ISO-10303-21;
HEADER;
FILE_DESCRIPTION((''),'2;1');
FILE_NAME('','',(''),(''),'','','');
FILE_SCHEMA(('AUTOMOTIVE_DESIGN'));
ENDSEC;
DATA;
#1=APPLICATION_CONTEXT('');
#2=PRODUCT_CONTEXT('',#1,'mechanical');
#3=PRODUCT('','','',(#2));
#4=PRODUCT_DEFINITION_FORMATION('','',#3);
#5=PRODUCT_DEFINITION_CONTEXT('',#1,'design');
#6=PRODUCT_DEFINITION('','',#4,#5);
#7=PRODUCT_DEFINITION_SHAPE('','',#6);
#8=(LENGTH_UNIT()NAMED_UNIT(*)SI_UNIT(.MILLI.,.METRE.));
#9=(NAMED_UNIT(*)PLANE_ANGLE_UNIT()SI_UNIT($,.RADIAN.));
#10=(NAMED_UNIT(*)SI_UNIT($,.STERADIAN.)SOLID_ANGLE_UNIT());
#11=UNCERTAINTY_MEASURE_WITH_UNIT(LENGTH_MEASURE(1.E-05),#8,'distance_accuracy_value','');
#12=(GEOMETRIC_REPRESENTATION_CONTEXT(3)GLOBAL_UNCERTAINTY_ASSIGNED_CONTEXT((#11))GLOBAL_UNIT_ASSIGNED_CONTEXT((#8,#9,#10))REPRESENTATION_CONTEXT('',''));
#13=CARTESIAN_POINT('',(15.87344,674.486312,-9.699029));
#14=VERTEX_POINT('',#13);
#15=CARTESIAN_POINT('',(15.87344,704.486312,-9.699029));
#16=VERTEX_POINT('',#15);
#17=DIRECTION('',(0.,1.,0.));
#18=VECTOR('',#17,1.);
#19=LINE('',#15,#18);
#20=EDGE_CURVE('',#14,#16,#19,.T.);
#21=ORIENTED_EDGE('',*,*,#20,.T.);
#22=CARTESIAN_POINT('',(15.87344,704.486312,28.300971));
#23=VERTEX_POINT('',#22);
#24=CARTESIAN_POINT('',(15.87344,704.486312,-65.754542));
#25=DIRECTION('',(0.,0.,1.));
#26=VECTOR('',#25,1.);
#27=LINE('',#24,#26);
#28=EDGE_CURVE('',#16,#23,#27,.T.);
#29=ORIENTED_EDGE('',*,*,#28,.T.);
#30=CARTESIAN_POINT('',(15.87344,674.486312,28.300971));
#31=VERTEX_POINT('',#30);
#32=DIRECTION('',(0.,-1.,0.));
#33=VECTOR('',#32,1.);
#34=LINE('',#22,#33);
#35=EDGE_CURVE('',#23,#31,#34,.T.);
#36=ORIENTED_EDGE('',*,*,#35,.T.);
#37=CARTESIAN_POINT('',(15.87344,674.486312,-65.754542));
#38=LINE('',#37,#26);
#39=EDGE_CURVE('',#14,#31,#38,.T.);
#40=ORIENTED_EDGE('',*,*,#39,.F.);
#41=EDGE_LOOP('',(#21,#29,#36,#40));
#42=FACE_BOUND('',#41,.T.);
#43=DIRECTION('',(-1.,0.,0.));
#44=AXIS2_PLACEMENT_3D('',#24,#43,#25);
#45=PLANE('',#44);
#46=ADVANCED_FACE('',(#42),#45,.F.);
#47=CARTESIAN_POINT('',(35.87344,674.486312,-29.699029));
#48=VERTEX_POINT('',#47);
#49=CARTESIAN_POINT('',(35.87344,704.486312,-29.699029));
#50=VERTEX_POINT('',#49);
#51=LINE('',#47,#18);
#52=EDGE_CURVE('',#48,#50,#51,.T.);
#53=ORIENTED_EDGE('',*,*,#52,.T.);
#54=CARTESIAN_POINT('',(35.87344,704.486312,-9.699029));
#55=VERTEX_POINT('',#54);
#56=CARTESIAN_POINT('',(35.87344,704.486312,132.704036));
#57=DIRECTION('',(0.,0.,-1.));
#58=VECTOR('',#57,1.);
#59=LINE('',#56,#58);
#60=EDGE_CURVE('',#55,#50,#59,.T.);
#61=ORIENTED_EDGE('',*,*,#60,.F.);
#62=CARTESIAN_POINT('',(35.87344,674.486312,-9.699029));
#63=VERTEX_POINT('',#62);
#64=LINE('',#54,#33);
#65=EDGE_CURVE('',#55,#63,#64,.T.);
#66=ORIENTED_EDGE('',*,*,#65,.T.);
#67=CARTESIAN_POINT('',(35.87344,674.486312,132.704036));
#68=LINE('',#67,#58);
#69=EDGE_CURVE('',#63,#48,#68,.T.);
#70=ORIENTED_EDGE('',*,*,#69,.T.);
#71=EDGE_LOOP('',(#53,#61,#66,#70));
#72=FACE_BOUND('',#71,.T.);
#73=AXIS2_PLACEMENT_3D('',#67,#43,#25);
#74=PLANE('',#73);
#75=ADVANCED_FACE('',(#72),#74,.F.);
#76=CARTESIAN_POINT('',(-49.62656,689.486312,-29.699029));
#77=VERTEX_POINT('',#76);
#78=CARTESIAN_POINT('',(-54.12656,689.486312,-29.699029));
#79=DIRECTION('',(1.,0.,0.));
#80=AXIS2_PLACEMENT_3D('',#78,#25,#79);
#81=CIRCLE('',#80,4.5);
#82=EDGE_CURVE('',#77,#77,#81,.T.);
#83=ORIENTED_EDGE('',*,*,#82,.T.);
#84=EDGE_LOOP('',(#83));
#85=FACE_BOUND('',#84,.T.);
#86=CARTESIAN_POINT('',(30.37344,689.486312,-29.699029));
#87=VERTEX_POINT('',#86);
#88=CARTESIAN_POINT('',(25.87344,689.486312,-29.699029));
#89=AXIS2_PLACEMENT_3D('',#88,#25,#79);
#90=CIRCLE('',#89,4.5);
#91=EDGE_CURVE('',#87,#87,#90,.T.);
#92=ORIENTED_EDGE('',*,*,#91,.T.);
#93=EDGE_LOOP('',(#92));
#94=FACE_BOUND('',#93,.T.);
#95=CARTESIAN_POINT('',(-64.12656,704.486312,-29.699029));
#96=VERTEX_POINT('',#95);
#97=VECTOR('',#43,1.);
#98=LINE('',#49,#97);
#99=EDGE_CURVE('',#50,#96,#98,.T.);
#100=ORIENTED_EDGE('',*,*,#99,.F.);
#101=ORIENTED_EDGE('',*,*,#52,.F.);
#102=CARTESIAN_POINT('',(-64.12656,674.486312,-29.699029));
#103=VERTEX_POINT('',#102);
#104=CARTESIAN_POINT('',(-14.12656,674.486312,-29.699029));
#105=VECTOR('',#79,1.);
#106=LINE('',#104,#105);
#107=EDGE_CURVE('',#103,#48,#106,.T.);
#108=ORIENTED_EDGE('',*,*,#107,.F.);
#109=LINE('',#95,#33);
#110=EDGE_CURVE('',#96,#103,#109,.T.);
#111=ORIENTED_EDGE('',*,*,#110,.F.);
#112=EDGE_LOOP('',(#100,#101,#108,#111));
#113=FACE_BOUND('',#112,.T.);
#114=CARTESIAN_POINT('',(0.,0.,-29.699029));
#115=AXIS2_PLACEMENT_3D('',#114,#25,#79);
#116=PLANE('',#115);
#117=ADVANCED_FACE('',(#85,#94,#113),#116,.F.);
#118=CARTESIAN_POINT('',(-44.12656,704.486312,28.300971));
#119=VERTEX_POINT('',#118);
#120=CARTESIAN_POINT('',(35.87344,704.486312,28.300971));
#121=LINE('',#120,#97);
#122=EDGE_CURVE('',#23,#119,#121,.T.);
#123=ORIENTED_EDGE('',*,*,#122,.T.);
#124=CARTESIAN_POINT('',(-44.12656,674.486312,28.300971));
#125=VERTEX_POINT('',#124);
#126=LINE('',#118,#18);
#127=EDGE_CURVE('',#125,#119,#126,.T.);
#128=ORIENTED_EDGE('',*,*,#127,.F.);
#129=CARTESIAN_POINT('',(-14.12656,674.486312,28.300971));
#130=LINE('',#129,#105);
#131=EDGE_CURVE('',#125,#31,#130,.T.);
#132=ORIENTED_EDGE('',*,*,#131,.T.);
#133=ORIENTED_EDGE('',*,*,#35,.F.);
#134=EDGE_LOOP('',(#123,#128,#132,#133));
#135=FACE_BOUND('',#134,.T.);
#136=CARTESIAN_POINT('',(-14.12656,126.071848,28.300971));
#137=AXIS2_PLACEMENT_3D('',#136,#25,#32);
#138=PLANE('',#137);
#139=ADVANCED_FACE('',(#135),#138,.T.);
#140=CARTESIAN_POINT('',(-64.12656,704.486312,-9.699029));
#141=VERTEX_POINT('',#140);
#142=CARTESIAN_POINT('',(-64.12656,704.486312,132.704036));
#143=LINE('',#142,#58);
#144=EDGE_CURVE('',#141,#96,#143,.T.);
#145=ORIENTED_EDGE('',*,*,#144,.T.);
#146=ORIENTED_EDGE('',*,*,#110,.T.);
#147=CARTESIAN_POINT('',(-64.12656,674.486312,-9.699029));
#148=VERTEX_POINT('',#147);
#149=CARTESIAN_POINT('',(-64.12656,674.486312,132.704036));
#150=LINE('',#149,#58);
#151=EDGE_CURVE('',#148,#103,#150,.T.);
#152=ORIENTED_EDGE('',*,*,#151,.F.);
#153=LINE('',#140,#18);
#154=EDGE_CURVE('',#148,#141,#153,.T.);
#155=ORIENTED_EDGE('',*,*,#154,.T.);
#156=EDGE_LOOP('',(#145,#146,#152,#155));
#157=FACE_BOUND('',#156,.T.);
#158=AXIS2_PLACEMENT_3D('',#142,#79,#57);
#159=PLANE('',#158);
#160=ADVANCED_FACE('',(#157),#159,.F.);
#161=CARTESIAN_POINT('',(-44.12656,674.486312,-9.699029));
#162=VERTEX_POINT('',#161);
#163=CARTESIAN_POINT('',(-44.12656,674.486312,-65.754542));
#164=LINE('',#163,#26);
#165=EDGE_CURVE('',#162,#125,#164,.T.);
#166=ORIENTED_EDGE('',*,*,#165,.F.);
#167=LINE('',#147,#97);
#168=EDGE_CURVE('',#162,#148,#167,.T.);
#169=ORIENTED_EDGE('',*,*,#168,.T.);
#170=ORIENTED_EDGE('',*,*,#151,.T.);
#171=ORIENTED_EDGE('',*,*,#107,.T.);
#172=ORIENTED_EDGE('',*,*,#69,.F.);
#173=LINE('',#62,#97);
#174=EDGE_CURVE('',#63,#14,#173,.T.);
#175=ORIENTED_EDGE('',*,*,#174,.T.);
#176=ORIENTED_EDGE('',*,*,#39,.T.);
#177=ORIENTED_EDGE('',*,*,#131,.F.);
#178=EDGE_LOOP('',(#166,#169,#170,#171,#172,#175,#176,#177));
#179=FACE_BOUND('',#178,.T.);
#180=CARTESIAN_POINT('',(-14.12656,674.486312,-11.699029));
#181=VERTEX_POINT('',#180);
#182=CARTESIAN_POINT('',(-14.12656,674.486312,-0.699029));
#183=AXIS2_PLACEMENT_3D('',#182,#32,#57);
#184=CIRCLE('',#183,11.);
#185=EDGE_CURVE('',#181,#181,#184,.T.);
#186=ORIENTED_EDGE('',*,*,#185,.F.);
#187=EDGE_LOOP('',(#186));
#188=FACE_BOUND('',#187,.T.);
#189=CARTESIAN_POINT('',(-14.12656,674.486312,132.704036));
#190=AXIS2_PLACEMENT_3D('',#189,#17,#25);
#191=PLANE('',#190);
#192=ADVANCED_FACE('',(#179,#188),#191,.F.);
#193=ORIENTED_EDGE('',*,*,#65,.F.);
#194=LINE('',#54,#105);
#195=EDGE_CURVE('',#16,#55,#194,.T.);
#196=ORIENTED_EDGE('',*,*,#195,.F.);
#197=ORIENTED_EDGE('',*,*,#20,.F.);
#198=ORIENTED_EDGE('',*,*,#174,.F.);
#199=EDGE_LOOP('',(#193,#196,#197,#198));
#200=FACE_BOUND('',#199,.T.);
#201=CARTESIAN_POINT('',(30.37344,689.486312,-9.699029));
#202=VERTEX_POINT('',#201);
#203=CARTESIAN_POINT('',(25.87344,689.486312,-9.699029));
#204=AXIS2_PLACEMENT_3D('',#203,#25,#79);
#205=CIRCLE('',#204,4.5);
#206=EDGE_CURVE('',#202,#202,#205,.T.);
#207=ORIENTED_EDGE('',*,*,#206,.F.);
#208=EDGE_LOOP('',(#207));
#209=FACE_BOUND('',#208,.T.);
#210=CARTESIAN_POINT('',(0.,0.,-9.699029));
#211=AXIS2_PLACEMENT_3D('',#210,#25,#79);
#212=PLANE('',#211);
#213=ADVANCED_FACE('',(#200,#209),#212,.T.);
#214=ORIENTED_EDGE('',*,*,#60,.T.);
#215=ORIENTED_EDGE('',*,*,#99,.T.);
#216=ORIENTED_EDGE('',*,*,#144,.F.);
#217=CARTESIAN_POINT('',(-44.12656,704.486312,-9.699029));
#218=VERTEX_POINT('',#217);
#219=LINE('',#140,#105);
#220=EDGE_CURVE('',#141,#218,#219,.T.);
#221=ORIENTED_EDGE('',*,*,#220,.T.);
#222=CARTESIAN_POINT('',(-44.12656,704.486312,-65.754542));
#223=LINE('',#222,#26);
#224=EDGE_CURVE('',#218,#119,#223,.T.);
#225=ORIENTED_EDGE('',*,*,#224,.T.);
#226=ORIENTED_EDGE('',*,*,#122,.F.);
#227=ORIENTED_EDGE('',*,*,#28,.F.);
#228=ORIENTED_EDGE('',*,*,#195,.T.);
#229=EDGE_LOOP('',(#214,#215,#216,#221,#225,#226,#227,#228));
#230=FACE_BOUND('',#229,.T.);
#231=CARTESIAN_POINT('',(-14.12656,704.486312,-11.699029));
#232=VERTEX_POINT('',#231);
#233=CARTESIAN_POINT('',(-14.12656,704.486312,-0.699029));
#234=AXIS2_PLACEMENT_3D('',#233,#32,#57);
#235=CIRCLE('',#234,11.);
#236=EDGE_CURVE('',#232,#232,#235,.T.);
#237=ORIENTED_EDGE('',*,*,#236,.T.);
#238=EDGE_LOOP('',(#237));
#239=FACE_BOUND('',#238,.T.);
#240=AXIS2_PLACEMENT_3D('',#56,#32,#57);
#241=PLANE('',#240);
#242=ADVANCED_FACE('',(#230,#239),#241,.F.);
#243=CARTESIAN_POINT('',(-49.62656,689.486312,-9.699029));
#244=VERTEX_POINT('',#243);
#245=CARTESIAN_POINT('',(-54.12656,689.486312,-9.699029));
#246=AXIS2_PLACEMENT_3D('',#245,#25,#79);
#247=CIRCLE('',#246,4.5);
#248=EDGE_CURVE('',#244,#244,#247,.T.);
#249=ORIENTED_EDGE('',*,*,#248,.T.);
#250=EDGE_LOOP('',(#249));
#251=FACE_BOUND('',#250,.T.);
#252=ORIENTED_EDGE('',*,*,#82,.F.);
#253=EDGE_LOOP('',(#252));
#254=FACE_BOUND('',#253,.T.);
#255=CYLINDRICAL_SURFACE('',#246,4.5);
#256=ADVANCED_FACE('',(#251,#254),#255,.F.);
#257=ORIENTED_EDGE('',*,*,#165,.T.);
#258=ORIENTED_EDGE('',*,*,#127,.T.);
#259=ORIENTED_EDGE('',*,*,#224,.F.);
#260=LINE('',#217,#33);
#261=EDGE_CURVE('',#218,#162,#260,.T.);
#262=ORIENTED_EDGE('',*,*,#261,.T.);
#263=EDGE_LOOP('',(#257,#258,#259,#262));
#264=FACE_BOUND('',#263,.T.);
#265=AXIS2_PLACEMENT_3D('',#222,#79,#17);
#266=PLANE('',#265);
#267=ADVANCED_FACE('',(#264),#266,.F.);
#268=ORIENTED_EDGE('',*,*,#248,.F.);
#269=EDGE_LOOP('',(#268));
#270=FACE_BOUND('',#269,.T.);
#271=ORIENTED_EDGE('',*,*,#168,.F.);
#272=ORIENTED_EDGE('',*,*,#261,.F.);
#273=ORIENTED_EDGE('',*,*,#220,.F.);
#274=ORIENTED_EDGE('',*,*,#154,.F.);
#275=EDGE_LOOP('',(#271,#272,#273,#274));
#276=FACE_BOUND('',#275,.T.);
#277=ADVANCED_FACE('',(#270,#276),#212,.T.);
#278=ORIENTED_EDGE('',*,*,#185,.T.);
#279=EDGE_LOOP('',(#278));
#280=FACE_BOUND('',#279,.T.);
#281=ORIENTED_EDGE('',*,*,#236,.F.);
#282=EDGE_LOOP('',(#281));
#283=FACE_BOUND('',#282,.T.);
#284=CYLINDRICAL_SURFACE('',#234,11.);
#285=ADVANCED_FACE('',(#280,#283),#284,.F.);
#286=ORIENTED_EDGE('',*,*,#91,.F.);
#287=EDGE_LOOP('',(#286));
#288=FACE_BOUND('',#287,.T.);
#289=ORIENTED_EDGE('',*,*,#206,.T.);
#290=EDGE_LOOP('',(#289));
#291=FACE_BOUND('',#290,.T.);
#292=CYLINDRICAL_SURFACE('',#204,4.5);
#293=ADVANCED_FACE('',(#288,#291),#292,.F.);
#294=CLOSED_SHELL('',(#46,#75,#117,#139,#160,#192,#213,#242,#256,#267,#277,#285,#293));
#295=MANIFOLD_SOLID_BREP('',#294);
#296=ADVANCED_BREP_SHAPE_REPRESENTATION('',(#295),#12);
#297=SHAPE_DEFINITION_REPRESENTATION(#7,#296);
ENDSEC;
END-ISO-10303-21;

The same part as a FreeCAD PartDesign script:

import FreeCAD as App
import Part
import Sketcher


def add_polygon(sketch, points):
    """Adds a closed chain of lines whose ends are joined by coincident constraints."""
    first, n = sketch.GeometryCount, len(points)
    for a, b in zip(points, points[1:] + points[:1]):
        sketch.addGeometry(Part.LineSegment(App.Vector(*a, 0), App.Vector(*b, 0)), False)
    for i in range(n):
        sketch.addConstraint(Sketcher.Constraint("Coincident", first + i, 2, first + (i + 1) % n, 1))

doc = App.newDocument("Part")
body = doc.addObject("PartDesign::Body", "Body")

# Sketch on XY plane
sketch1 = body.newObject("Sketcher::SketchObject", "Sketch")
sketch1.AttachmentSupport = (doc.getObject("XY_Plane"), [""])
sketch1.MapMode = "FlatFace"
sketch1.AttachmentOffset = App.Placement(App.Vector(0, 0, -29.699029), App.Rotation())
add_polygon(sketch1, [(-64, 674), (36, 674), (36, 704), (-64, 704)])  # lines 0-3
sketch1.addConstraint(Sketcher.Constraint("Horizontal", 0))
sketch1.addConstraint(Sketcher.Constraint("Vertical", 1))
sketch1.addConstraint(Sketcher.Constraint("Horizontal", 2))
sketch1.addConstraint(Sketcher.Constraint("Vertical", 3))
sketch1.addConstraint(Sketcher.Constraint("DistanceX", 0, 1, 0, 2, 100.0))
sketch1.addConstraint(Sketcher.Constraint("DistanceY", 1, 1, 1, 2, 30.0))
sketch1.addConstraint(Sketcher.Constraint("DistanceX", -1, 1, 0, 2, 35.87344))
sketch1.addConstraint(Sketcher.Constraint("DistanceY", -1, 1, 0, 2, 674.486312))
pad1 = body.newObject("PartDesign::Pad", "Pad")
pad1.Profile = sketch1
pad1.Length = 58

# Sketch on XZ plane
sketch2 = body.newObject("Sketcher::SketchObject", "Sketch001")
sketch2.AttachmentSupport = (doc.getObject("XZ_Plane"), [""])
sketch2.MapMode = "FlatFace"
sketch2.AttachmentOffset = App.Placement(App.Vector(0, 0, -674.486312), App.Rotation())
sketch2.addGeometry(Part.Circle(App.Vector(-14, -1, 0), App.Vector(0, 0, 1), 11), False)
sketch2.addConstraint(Sketcher.Constraint("Diameter", 0, 22.0))
sketch2.addConstraint(Sketcher.Constraint("DistanceX", 0, 3, -1, 1, 14.12656))
sketch2.addConstraint(Sketcher.Constraint("DistanceY", 0, 3, -1, 1, 0.699029))
pocket1 = body.newObject("PartDesign::Pocket", "Pocket")
pocket1.Profile = sketch2
pocket1.Type = "ThroughAll"

# Sketch on XY plane
sketch3 = body.newObject("Sketcher::SketchObject", "Sketch002")
sketch3.AttachmentSupport = (doc.getObject("XY_Plane"), [""])
sketch3.MapMode = "FlatFace"
sketch3.AttachmentOffset = App.Placement(App.Vector(0, 0, 28.300971), App.Rotation())
add_polygon(sketch3, [(-64, 704), (-64, 674), (-44, 674), (-44, 704)])  # lines 0-3
add_polygon(sketch3, [(16, 704), (16, 674), (36, 674), (36, 704)])  # lines 4-7
sketch3.addConstraint(Sketcher.Constraint("Vertical", 0))
sketch3.addConstraint(Sketcher.Constraint("Horizontal", 1))
sketch3.addConstraint(Sketcher.Constraint("Vertical", 2))
sketch3.addConstraint(Sketcher.Constraint("Horizontal", 3))
sketch3.addConstraint(Sketcher.Constraint("Vertical", 4))
sketch3.addConstraint(Sketcher.Constraint("Horizontal", 5))
sketch3.addConstraint(Sketcher.Constraint("Vertical", 6))
sketch3.addConstraint(Sketcher.Constraint("Horizontal", 7))
sketch3.addConstraint(Sketcher.Constraint("Horizontal", 1, 2, 4, 2))
sketch3.addConstraint(Sketcher.Constraint("Horizontal", 3, 2, 6, 2))
sketch3.addConstraint(Sketcher.Constraint("Equal", 3, 5))
sketch3.addConstraint(Sketcher.Constraint("DistanceX", 1, 1, 1, 2, 20.0))
sketch3.addConstraint(Sketcher.Constraint("DistanceY", 0, 2, 0, 1, 30.0))
sketch3.addConstraint(Sketcher.Constraint("DistanceX", 1, 2, 4, 2, 60.0))
sketch3.addConstraint(Sketcher.Constraint("DistanceX", 0, 2, -1, 1, 64.12656))
sketch3.addConstraint(Sketcher.Constraint("DistanceY", -1, 1, 0, 2, 674.486312))
pocket2 = body.newObject("PartDesign::Pocket", "Pocket001")
pocket2.Profile = sketch3
pocket2.Length = 38

# Sketch on XY plane
sketch4 = body.newObject("Sketcher::SketchObject", "Sketch003")
sketch4.AttachmentSupport = (doc.getObject("XY_Plane"), [""])
sketch4.MapMode = "FlatFace"
sketch4.AttachmentOffset = App.Placement(App.Vector(0, 0, -9.699029), App.Rotation())
sketch4.addGeometry(Part.Circle(App.Vector(-54.1, 172.6, 0), App.Vector(0, 0, 1), 4.5), False)
sketch4.addGeometry(Part.Circle(App.Vector(-54.1, 137.6, 0), App.Vector(0, 0, 1), 4.5), False)
sketch4.addGeometry(Part.Circle(App.Vector(25.9, 172.6, 0), App.Vector(0, 0, 1), 4.5), False)
sketch4.addGeometry(Part.Circle(App.Vector(25.9, 137.6, 0), App.Vector(0, 0, 1), 4.5), False)
sketch4.addGeometry(Part.Circle(App.Vector(-54.1, 689.5, 0), App.Vector(0, 0, 1), 4.5), False)
sketch4.addGeometry(Part.Circle(App.Vector(25.9, 689.5, 0), App.Vector(0, 0, 1), 4.5), False)
sketch4.addConstraint(Sketcher.Constraint("Equal", 0, 1))
sketch4.addConstraint(Sketcher.Constraint("Equal", 1, 2))
sketch4.addConstraint(Sketcher.Constraint("Equal", 2, 3))
sketch4.addConstraint(Sketcher.Constraint("Equal", 3, 4))
sketch4.addConstraint(Sketcher.Constraint("Equal", 4, 5))
sketch4.addConstraint(Sketcher.Constraint("Horizontal", 0, 3, 2, 3))
sketch4.addConstraint(Sketcher.Constraint("Horizontal", 1, 3, 3, 3))
sketch4.addConstraint(Sketcher.Constraint("Horizontal", 4, 3, 5, 3))
sketch4.addConstraint(Sketcher.Constraint("Vertical", 0, 3, 1, 3))
sketch4.addConstraint(Sketcher.Constraint("Vertical", 2, 3, 3, 3))
sketch4.addConstraint(Sketcher.Constraint("Vertical", 1, 3, 4, 3))
sketch4.addConstraint(Sketcher.Constraint("Vertical", 3, 3, 5, 3))
sketch4.addConstraint(Sketcher.Constraint("Diameter", 0, 9.0))
sketch4.addConstraint(Sketcher.Constraint("DistanceY", 1, 3, 0, 3, 35.0))
sketch4.addConstraint(Sketcher.Constraint("DistanceX", 0, 3, 2, 3, 80.0))
sketch4.addConstraint(Sketcher.Constraint("DistanceX", 0, 3, -1, 1, 54.12656))
sketch4.addConstraint(Sketcher.Constraint("DistanceY", -1, 1, 4, 3, 689.486312))
sketch4.addConstraint(Sketcher.Constraint("DistanceY", -1, 1, 0, 3, 172.571848))
doc.recompute()
hole = body.newObject("PartDesign::Hole", "Hole")
hole.Profile = sketch4
hole.ThreadType = "None"
hole.Diameter = 9
hole.DepthType = "ThroughAll"

doc.recompute()
